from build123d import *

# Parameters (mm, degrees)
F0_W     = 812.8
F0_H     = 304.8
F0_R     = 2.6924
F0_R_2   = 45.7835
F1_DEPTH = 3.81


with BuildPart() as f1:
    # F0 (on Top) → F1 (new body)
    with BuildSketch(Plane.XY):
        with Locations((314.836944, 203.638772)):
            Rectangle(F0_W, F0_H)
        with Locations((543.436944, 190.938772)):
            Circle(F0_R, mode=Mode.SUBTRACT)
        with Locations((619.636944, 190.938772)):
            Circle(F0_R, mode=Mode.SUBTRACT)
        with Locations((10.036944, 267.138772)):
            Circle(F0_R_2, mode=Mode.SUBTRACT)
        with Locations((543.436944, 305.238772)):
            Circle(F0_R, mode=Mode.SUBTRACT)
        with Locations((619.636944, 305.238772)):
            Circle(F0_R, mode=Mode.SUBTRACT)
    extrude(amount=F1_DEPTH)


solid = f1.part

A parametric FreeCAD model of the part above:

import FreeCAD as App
import Part
import Sketcher
Q = App.Units.Quantity


def add_polygon(sketch, points):
    """Adds a closed chain of lines whose ends are joined by coincident constraints."""
    first, n = sketch.GeometryCount, len(points)
    for a, b in zip(points, points[1:] + points[:1]):
        sketch.addGeometry(Part.LineSegment(App.Vector(*a, 0), App.Vector(*b, 0)), False)
    for i in range(n):
        sketch.addConstraint(Sketcher.Constraint("Coincident", first + i, 2, first + (i + 1) % n, 1))

doc = App.newDocument("Part")
body = doc.addObject("PartDesign::Body", "Body")

# Sketch on XY plane
sketch1 = doc.addObject("Sketcher::SketchObject", "Sketch")
body.addObject(sketch1)
sketch1.AttachmentSupport = (doc.XY_Plane, [""])
sketch1.MapMode = "FlatFace"
add_polygon(sketch1, [(-91.6, 356), (-91.6, 51.2), (721.2, 51.2), (721.2, 356)])  # lines 0-3
sketch1.addGeometry(Part.Circle(App.Vector(543.4, 190.9, 0), App.Vector(0, 0, 1), 2.7), False)  # 4
sketch1.addGeometry(Part.Circle(App.Vector(619.6, 190.9, 0), App.Vector(0, 0, 1), 2.7), False)  # 5
sketch1.addGeometry(Part.Circle(App.Vector(10, 267.1, 0), App.Vector(0, 0, 1), 45.8), False)  # 6
sketch1.addGeometry(Part.Circle(App.Vector(543.4, 305.2, 0), App.Vector(0, 0, 1), 2.7), False)  # 7
sketch1.addGeometry(Part.Circle(App.Vector(619.6, 305.2, 0), App.Vector(0, 0, 1), 2.7), False)  # 8
sketch1.addConstraint([
    Sketcher.Constraint("Vertical", 0),
    Sketcher.Constraint("Horizontal", 1),
    Sketcher.Constraint("Vertical", 2),
    Sketcher.Constraint("Horizontal", 3),
    Sketcher.Constraint("Equal", 4, 5),
    Sketcher.Constraint("Equal", 5, 7),
    Sketcher.Constraint("Equal", 7, 8),
    Sketcher.Constraint("Horizontal", 4, 3, 5, 3),
    Sketcher.Constraint("Horizontal", 7, 3, 8, 3),
    Sketcher.Constraint("Vertical", 4, 3, 7, 3),
    Sketcher.Constraint("Vertical", 5, 3, 8, 3),
    Sketcher.Constraint("DistanceX", 1, 1, 1, 2, Q("32 in")),
    Sketcher.Constraint("DistanceY", 0, 2, 0, 1, Q("12 in")),
    Sketcher.Constraint("Diameter", 4, Q("0.212 in")),
    Sketcher.Constraint("Diameter", 6, Q("3.605 in")),
    Sketcher.Constraint("DistanceX", 4, 3, 5, 3, Q("3 in")),
    Sketcher.Constraint("DistanceX", 6, 3, 4, 3, Q("21 in")),
    Sketcher.Constraint("DistanceY", 4, 3, 6, 3, Q("3 in")),
    Sketcher.Constraint("DistanceX", 0, 2, 6, 3, Q("4 in")),
    Sketcher.Constraint("DistanceY", 0, 2, 7, 3, Q("10 in")),
    Sketcher.Constraint("DistanceY", 4, 3, 7, 3, Q("4.5 in")),
    Sketcher.Constraint("DistanceY", -1, 1, 4, 3, 190.938772),
    Sketcher.Constraint("DistanceX", -1, 1, 4, 3, 543.436944),
])
pad1 = doc.addObject("PartDesign::Pad", "Pad")
body.addObject(pad1)
pad1.Profile = sketch1
pad1.Length = Q("0.15 in")

doc.recompute()
